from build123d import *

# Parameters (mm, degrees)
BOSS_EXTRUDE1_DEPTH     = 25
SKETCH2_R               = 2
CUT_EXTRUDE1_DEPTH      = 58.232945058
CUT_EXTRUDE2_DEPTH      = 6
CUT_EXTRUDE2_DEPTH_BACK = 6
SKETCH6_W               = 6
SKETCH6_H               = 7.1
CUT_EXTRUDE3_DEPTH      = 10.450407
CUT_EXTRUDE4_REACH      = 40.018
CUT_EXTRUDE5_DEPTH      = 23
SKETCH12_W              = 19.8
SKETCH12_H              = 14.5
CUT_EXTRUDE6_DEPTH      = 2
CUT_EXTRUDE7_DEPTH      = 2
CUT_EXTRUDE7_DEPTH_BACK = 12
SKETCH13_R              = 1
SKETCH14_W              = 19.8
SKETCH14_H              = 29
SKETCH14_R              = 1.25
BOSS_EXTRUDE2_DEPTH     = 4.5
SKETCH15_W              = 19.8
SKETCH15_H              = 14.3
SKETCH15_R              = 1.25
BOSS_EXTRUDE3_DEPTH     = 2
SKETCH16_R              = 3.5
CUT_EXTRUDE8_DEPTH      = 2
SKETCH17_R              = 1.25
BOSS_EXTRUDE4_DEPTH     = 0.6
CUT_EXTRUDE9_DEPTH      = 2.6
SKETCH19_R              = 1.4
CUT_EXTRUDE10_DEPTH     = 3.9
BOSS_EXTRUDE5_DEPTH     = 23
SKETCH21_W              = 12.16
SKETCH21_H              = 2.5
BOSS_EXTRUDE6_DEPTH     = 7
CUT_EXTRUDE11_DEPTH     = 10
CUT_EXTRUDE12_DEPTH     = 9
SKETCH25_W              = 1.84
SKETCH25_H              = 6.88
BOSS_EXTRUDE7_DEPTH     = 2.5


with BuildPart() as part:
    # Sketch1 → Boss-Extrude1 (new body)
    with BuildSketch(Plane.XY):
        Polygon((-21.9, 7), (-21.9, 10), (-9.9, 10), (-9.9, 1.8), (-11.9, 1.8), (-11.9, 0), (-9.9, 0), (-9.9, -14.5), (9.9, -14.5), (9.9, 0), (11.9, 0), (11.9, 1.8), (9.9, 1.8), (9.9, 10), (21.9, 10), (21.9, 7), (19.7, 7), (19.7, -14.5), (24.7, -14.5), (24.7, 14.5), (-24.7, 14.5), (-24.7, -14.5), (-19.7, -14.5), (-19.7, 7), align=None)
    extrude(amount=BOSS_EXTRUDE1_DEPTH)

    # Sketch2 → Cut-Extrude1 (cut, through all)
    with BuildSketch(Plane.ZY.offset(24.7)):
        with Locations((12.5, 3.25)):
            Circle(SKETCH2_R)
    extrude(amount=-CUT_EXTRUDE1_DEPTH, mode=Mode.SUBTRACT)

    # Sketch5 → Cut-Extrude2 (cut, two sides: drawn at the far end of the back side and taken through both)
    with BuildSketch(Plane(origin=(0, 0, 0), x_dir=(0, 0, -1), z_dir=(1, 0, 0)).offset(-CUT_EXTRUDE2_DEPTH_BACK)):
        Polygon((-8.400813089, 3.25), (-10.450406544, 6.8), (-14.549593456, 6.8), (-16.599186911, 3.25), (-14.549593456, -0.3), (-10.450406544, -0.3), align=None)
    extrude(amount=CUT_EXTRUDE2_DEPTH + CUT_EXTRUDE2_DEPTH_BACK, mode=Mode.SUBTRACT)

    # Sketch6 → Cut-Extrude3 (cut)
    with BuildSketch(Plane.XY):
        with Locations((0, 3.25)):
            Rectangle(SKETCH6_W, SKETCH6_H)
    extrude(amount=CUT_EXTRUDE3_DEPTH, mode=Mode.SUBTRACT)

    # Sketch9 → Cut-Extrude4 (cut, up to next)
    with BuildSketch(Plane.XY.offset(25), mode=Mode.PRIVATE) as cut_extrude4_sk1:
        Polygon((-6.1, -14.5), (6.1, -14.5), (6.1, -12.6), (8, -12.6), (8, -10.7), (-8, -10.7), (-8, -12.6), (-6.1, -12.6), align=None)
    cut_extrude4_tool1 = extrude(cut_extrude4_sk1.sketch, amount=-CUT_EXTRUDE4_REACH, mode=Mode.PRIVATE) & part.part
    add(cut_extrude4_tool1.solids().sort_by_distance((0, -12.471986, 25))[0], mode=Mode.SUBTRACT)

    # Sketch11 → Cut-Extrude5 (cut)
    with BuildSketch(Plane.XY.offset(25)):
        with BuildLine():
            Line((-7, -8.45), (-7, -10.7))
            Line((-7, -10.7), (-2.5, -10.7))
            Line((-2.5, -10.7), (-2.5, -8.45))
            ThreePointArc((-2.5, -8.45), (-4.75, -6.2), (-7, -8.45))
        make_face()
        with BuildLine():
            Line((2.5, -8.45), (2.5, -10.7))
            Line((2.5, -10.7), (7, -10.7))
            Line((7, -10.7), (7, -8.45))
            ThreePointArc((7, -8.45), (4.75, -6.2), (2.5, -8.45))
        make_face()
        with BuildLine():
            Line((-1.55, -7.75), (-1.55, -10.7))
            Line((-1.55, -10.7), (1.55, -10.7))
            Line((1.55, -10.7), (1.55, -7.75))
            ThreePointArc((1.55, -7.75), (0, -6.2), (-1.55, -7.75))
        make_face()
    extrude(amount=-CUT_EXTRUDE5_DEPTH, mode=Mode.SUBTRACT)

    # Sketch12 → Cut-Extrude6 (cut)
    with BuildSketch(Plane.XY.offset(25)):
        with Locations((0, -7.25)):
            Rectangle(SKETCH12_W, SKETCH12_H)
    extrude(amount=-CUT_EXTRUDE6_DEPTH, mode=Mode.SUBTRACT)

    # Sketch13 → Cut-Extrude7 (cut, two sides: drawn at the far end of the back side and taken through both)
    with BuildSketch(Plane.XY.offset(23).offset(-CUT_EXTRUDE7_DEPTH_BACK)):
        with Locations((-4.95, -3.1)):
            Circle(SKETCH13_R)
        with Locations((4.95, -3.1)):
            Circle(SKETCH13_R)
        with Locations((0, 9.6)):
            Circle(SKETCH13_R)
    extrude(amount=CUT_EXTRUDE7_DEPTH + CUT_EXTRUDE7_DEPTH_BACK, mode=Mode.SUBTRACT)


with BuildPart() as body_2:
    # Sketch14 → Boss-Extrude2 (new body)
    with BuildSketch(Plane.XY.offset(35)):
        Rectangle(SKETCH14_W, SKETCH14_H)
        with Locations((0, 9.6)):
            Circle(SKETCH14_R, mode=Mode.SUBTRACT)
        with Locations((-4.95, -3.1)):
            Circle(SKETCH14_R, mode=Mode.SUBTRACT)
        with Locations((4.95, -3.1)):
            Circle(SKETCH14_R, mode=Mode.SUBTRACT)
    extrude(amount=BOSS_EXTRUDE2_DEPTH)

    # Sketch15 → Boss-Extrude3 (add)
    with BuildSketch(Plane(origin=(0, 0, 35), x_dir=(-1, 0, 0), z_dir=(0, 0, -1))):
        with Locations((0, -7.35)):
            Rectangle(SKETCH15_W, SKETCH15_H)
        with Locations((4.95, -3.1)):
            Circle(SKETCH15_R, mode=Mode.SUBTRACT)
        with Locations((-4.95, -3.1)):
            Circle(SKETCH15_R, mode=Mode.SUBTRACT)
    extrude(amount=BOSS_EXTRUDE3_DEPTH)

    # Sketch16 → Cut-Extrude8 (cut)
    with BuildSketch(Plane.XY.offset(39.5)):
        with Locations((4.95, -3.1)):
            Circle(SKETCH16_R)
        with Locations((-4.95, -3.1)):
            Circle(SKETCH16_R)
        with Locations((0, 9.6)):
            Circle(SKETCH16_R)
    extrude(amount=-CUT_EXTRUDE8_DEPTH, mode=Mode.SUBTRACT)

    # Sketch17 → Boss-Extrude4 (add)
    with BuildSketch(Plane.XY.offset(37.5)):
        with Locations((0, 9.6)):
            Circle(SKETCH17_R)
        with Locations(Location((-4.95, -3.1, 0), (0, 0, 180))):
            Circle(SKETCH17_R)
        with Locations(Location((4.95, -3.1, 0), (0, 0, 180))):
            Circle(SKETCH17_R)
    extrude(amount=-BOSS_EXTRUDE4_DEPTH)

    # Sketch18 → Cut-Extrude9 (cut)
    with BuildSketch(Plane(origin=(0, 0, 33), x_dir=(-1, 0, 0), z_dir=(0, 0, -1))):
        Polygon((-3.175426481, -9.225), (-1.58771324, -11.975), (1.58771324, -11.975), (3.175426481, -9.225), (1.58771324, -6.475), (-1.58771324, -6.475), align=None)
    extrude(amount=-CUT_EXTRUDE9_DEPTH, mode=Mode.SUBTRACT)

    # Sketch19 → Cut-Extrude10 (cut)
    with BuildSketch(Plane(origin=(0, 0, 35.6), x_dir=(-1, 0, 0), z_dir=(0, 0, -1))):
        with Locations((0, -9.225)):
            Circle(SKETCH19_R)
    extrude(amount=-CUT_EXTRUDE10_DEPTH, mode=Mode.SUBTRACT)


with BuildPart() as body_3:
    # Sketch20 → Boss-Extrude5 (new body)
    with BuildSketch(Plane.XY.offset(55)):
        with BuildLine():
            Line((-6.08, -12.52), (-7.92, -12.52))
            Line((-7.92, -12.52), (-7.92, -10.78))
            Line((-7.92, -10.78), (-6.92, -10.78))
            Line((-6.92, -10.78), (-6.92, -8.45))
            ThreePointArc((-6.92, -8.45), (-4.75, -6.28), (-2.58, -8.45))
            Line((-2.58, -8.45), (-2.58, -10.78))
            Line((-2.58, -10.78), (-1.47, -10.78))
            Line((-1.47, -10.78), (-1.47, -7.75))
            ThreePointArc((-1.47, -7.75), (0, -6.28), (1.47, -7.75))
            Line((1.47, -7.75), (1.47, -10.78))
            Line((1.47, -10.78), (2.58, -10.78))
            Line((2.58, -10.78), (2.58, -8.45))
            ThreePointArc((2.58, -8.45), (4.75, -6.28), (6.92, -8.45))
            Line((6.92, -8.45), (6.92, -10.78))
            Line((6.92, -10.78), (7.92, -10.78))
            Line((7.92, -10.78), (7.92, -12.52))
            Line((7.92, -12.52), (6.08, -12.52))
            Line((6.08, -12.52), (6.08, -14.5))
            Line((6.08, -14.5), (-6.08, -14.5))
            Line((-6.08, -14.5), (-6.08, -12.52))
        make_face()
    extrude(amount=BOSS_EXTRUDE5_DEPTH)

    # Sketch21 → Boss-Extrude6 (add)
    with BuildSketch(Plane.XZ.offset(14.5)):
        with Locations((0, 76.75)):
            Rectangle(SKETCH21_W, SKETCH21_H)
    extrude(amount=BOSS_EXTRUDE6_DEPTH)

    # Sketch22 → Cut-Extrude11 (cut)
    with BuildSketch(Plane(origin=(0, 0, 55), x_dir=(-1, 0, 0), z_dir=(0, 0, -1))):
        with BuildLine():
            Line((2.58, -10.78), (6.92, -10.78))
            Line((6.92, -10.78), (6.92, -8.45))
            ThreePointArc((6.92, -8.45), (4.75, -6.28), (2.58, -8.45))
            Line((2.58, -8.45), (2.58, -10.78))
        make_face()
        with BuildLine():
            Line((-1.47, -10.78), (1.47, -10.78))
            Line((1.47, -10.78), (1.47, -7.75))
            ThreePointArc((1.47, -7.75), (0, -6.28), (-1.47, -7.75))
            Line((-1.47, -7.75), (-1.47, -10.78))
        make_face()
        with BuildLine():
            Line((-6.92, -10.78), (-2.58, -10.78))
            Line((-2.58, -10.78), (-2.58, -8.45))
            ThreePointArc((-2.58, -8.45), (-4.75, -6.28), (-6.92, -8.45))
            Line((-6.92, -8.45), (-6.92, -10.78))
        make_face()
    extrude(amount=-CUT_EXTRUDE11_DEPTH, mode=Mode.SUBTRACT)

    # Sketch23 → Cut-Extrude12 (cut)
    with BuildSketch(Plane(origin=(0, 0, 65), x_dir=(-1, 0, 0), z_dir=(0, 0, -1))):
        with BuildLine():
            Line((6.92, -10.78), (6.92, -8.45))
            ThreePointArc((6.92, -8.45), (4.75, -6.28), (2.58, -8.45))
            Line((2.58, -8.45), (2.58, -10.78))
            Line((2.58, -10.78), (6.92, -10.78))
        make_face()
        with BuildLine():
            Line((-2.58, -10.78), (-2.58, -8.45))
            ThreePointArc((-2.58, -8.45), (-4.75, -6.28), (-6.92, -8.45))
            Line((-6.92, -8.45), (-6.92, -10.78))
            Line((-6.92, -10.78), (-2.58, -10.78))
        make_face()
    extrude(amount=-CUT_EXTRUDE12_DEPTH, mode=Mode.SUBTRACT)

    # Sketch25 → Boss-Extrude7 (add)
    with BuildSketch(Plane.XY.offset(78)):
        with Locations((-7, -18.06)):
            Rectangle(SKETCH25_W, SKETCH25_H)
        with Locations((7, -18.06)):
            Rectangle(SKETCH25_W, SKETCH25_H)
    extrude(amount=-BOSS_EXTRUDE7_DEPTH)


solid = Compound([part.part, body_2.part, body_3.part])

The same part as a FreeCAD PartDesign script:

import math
import FreeCAD as App
import Part
import Sketcher
Q = App.Units.Quantity


def add_polygon(sketch, points):
    """Adds a closed chain of lines whose ends are joined by coincident constraints."""
    first, n = sketch.GeometryCount, len(points)
    for a, b in zip(points, points[1:] + points[:1]):
        sketch.addGeometry(Part.LineSegment(App.Vector(*a, 0), App.Vector(*b, 0)), False)
    for i in range(n):
        sketch.addConstraint(Sketcher.Constraint("Coincident", first + i, 2, first + (i + 1) % n, 1))

doc = App.newDocument("Part")
params = doc.addObject("Spreadsheet::Sheet", "Params")
for row, (alias, value) in enumerate([
    ("sketch1_width", "12 mm"),
    ("sketch1_width2", "2 mm"),
    ("sketch1_width3", "5 mm"),
    ("sketch1_height", "3 mm"),
    ("sketch1_height2", "29 mm"),
    ("pad1_length", "25 mm"),
    ("sketch2_diameter", "4 mm"),
    ("pocket2_length", "6 mm"),
    ("pocket2_length2", "6 mm"),
    ("sketch4_width", "6 mm"),
    ("sketch4_height", "7.1 mm"),
    ("pocket3_length", "10.450407 mm"),
    ("sketch5_width", "16 mm"),
    ("sketch5_width2", "12.2 mm"),
    ("sketch6_radius", "2.25 mm"),
    ("sketch6_radius2", "1.55 mm"),
    ("sketch6_height", "2.25 mm"),
    ("sketch6_height2", "2.95 mm"),
    ("pocket5_length", "23 mm"),
    ("sketch7_width", "19.8 mm"),
    ("sketch7_height", "14.5 mm"),
    ("pocket6_length", "2 mm"),
    ("sketch8_diameter", "2 mm"),
    ("pocket7_length", "2 mm"),
    ("pocket7_length2", "12 mm"),
    ("sketch9_diameter", "2.5 mm"),
    ("sketch9_height", "29 mm"),
    ("sketch9_width", "19.8 mm"),
    ("pad2_length", "4.5 mm"),
    ("sketch10_diameter", "2.5 mm"),
    ("sketch10_width", "19.8 mm"),
    ("sketch10_height", "14.3 mm"),
    ("pad3_length", "2 mm"),
    ("sketch11_diameter", "7 mm"),
    ("pocket8_length", "2 mm"),
    ("sketch12_diameter", "2.5 mm"),
    ("pad4_length", "0.6 mm"),
    ("pocket9_length", "2.6 mm"),
    ("sketch14_diameter", "2.8 mm"),
    ("pocket10_length", "3.9 mm"),
    ("sketch15_width", "1 mm"),
    ("sketch15_radius", "2.17 mm"),
    ("sketch15_radius2", "1.47 mm"),
    ("sketch15_width2", "1.84 mm"),
    ("sketch15_width3", "12.16 mm"),
    ("pad5_length", "23 mm"),
    ("sketch16_height", "2.5 mm"),
    ("sketch16_width", "12.16 mm"),
    ("pad6_length", "7 mm"),
    ("sketch17_radius", "2.17 mm"),
    ("sketch17_radius2", "1.47 mm"),
    ("sketch17_height", "2.33 mm"),
    ("sketch17_height2", "3.03 mm"),
    ("pocket11_length", "10 mm"),
    ("sketch18_radius", "2.17 mm"),
    ("sketch18_height", "2.33 mm"),
    ("pocket12_length", "9 mm"),
    ("sketch19_width", "1.84 mm"),
    ("sketch19_height", "6.88 mm"),
    ("pad7_length", "2.5 mm"),
], start=1):
    params.set(f"A{row}", alias)
    params.set(f"B{row}", "=" + value)
    params.setAlias(f"B{row}", alias)

body = doc.addObject("PartDesign::Body", "Body")

sketch1 = doc.addObject("Sketcher::SketchObject", "Sketch")
body.addObject(sketch1)
sketch1.AttachmentSupport = (doc.XY_Plane, [""])
sketch1.MapMode = "FlatFace"
add_polygon(sketch1, [(-21.9, 7), (-21.9, 10), (-9.9, 10), (-9.9, 1.8), (-11.9, 1.8), (-11.9, 0), (-9.9, 0), (-9.9, -14.5), (9.9, -14.5), (9.9, 0), (11.9, 0), (11.9, 1.8), (9.9, 1.8), (9.9, 10), (21.9, 10), (21.9, 7), (19.7, 7), (19.7, -14.5), (24.7, -14.5), (24.7, 14.5), (-24.7, 14.5), (-24.7, -14.5), (-19.7, -14.5), (-19.7, 7)])
sketch1.addConstraint(Sketcher.Constraint("Vertical", 0))
sketch1.addConstraint(Sketcher.Constraint("Horizontal", 1))
sketch1.addConstraint(Sketcher.Constraint("Vertical", 2))
sketch1.addConstraint(Sketcher.Constraint("Horizontal", 3))
sketch1.addConstraint(Sketcher.Constraint("Vertical", 4))
sketch1.addConstraint(Sketcher.Constraint("Horizontal", 5))
sketch1.addConstraint(Sketcher.Constraint("Vertical", 6))
sketch1.addConstraint(Sketcher.Constraint("Horizontal", 7))
sketch1.addConstraint(Sketcher.Constraint("Vertical", 8))
sketch1.addConstraint(Sketcher.Constraint("Horizontal", 9))
sketch1.addConstraint(Sketcher.Constraint("Vertical", 10))
sketch1.addConstraint(Sketcher.Constraint("Horizontal", 11))
sketch1.addConstraint(Sketcher.Constraint("Vertical", 12))
sketch1.addConstraint(Sketcher.Constraint("Horizontal", 13))
sketch1.addConstraint(Sketcher.Constraint("Vertical", 14))
sketch1.addConstraint(Sketcher.Constraint("Horizontal", 15))
sketch1.addConstraint(Sketcher.Constraint("Vertical", 16))
sketch1.addConstraint(Sketcher.Constraint("Horizontal", 17))
sketch1.addConstraint(Sketcher.Constraint("Vertical", 18))
sketch1.addConstraint(Sketcher.Constraint("Horizontal", 19))
sketch1.addConstraint(Sketcher.Constraint("Vertical", 20))
sketch1.addConstraint(Sketcher.Constraint("Horizontal", 21))
sketch1.addConstraint(Sketcher.Constraint("Vertical", 22))
sketch1.addConstraint(Sketcher.Constraint("Horizontal", 23))
sketch1.addConstraint(Sketcher.Constraint("Symmetric", 5, 2, 8, 2, -1, 1))
sketch1.addConstraint(Sketcher.Constraint("Symmetric", 17, 2, 19, 2, -1, 1))
sketch1.addConstraint(Sketcher.Constraint("Symmetric", 4, 2, 9, 2, -2))
sketch1.addConstraint(Sketcher.Constraint("Symmetric", 2, 2, 11, 2, -2))
sketch1.addConstraint(Sketcher.Constraint("Symmetric", 0, 2, 13, 2, -2))
sketch1.addConstraint(Sketcher.Constraint("Symmetric", 16, 2, 21, 2, -2))
sketch1.addConstraint(Sketcher.Constraint("Horizontal", 7, 2, 16, 2))
sketch1.addConstraint(Sketcher.Constraint("Horizontal", 15, 2, 22, 2))
sketch1.addConstraint(Sketcher.Constraint("Vertical", 2, 2, 5, 2))
sketch1.addConstraint(Sketcher.Constraint("DistanceX", 1, 1, 1, 2, 12.0))
sketch1.addConstraint(Sketcher.Constraint("DistanceX", 3, 2, 3, 1, 2.0))
sketch1.addConstraint(Sketcher.Constraint("DistanceX", 17, 1, 17, 2, 5.0))
sketch1.addConstraint(Sketcher.Constraint("DistanceY", 0, 1, 0, 2, 3.0))
sketch1.addConstraint(Sketcher.Constraint("DistanceY", 18, 1, 18, 2, 29.0))
sketch1.addConstraint(Sketcher.Constraint("DistanceX", 7, 1, 7, 2, 19.8))
sketch1.addConstraint(Sketcher.Constraint("DistanceX", 15, 2, 15, 1, 2.2))
sketch1.addConstraint(Sketcher.Constraint("DistanceY", 2, 2, 2, 1, 8.2))
sketch1.addConstraint(Sketcher.Constraint("DistanceY", 4, 2, 4, 1, 1.8))
sketch1.setExpression("Constraints[57]", "Params.sketch1_width")
sketch1.setExpression("Constraints[58]", "Params.sketch1_width2")
sketch1.setExpression("Constraints[59]", "Params.sketch1_width3")
sketch1.setExpression("Constraints[60]", "Params.sketch1_height")
sketch1.setExpression("Constraints[61]", "Params.sketch1_height2")
pad1 = doc.addObject("PartDesign::Pad", "Pad")
body.addObject(pad1)
pad1.Profile = sketch1
pad1.setExpression("Length", "Params.pad1_length")

sketch2 = doc.addObject("Sketcher::SketchObject", "Sketch001")
body.addObject(sketch2)
sketch2.AttachmentSupport = (doc.YZ_Plane, [""])
sketch2.MapMode = "FlatFace"
sketch2.AttachmentOffset = App.Placement(App.Vector(0, 0, -24.7), App.Rotation())
sketch2.addGeometry(Part.Circle(App.Vector(3.2, 12.5, 0), App.Vector(0, 0, 1), 2), False)
sketch2.addConstraint(Sketcher.Constraint("Diameter", 0, 4.0))
sketch2.addConstraint(Sketcher.Constraint("DistanceY", -1, 1, 0, 3, 12.5))
sketch2.addConstraint(Sketcher.Constraint("DistanceX", -1, 1, 0, 3, 3.25))
sketch2.setExpression("Constraints[0]", "Params.sketch2_diameter")
pocket1 = doc.addObject("PartDesign::Pocket", "Pocket")
body.addObject(pocket1)
pocket1.Profile = sketch2
pocket1.Type = "ThroughAll"
pocket1.Reversed = True

sketch3 = doc.addObject("Sketcher::SketchObject", "Sketch002")
body.addObject(sketch3)
sketch3.AttachmentSupport = (doc.YZ_Plane, [""])
sketch3.MapMode = "FlatFace"
add_polygon(sketch3, [(3.2, 8.4), (6.8, 10.5), (6.8, 14.5), (3.2, 16.6), (-0.3, 14.5), (-0.3, 10.5)])
sketch3.addConstraint(Sketcher.Constraint("Vertical", 1))
sketch3.addConstraint(Sketcher.Constraint("Vertical", 4))
sketch3.addConstraint(Sketcher.Constraint("Parallel", 0, 3))
sketch3.addConstraint(Sketcher.Constraint("Parallel", 2, 5))
sketch3.addConstraint(Sketcher.Constraint("Horizontal", 1, 2, 3, 2))
sketch3.addConstraint(Sketcher.Constraint("Horizontal", 0, 2, 4, 2))
sketch3.addConstraint(Sketcher.Constraint("Vertical", 2, 2, 5, 2))
sketch3.addConstraint(Sketcher.Constraint("Angle", 0, Q("30 deg")))
sketch3.addConstraint(Sketcher.Constraint("DistanceX", -1, 1, 0, 2, 6.8))
sketch3.addConstraint(Sketcher.Constraint("DistanceX", 3, 2, -1, 1, 0.3))
sketch3.addConstraint(Sketcher.Constraint("DistanceY", 1, 1, 1, 2, 4.099187))
sketch3.addConstraint(Sketcher.Constraint("DistanceY", -1, 1, 0, 2, 10.450407))
pocket2 = doc.addObject("PartDesign::Pocket", "Pocket001")
body.addObject(pocket2)
pocket2.Profile = sketch3
pocket2.Type = "TwoLengths"
pocket2.setExpression("Length", "Params.pocket2_length")
pocket2.setExpression("Length2", "Params.pocket2_length2")
pocket2.Reversed = True

sketch4 = doc.addObject("Sketcher::SketchObject", "Sketch003")
body.addObject(sketch4)
sketch4.AttachmentSupport = (doc.XY_Plane, [""])
sketch4.MapMode = "FlatFace"
add_polygon(sketch4, [(-3, 7), (-3, 0), (3, 0), (3, 7)])
sketch4.addConstraint(Sketcher.Constraint("Vertical", 0))
sketch4.addConstraint(Sketcher.Constraint("Horizontal", 1))
sketch4.addConstraint(Sketcher.Constraint("Vertical", 2))
sketch4.addConstraint(Sketcher.Constraint("Horizontal", 3))
sketch4.addConstraint(Sketcher.Constraint("DistanceX", 1, 1, 1, 2, 6.0))
sketch4.addConstraint(Sketcher.Constraint("DistanceY", 0, 2, 0, 1, 7.1))
sketch4.addConstraint(Sketcher.Constraint("DistanceX", 0, 2, -1, 1, 3.0))
sketch4.addConstraint(Sketcher.Constraint("DistanceY", 0, 2, -1, 1, 0.3))
sketch4.setExpression("Constraints[8]", "Params.sketch4_width")
sketch4.setExpression("Constraints[9]", "Params.sketch4_height")
pocket3 = doc.addObject("PartDesign::Pocket", "Pocket002")
body.addObject(pocket3)
pocket3.Profile = sketch4
pocket3.setExpression("Length", "Params.pocket3_length")
pocket3.Reversed = True

sketch5 = doc.addObject("Sketcher::SketchObject", "Sketch004")
body.addObject(sketch5)
sketch5.AttachmentSupport = (doc.XY_Plane, [""])
sketch5.MapMode = "FlatFace"
sketch5.AttachmentOffset = App.Placement(App.Vector(0, 0, 25), App.Rotation())
add_polygon(sketch5, [(-6.1, -14.5), (6.1, -14.5), (6.1, -12.6), (8, -12.6), (8, -10.7), (-8, -10.7), (-8, -12.6), (-6.1, -12.6)])
sketch5.addConstraint(Sketcher.Constraint("Horizontal", 0))
sketch5.addConstraint(Sketcher.Constraint("Vertical", 1))
sketch5.addConstraint(Sketcher.Constraint("Horizontal", 2))
sketch5.addConstraint(Sketcher.Constraint("Vertical", 3))
sketch5.addConstraint(Sketcher.Constraint("Horizontal", 4))
sketch5.addConstraint(Sketcher.Constraint("Vertical", 5))
sketch5.addConstraint(Sketcher.Constraint("Horizontal", 6))
sketch5.addConstraint(Sketcher.Constraint("Vertical", 7))
sketch5.addConstraint(Sketcher.Constraint("Symmetric", 2, 2, 5, 2, -2))
sketch5.addConstraint(Sketcher.Constraint("Equal", 2, 6))
sketch5.addConstraint(Sketcher.Constraint("Equal", 6, 1))
sketch5.addConstraint(Sketcher.Constraint("Equal", 1, 3))
sketch5.addConstraint(Sketcher.Constraint("DistanceX", 4, 2, 4, 1, 16.0))
sketch5.addConstraint(Sketcher.Constraint("DistanceX", 0, 1, 0, 2, 12.2))
sketch5.addConstraint(Sketcher.Constraint("DistanceY", 0, 2, -1, 1, 14.5))
sketch5.setExpression("Constraints[20]", "Params.sketch5_width")
sketch5.setExpression("Constraints[21]", "Params.sketch5_width2")
pocket4 = doc.addObject("PartDesign::Pocket", "Pocket003")
body.addObject(pocket4)
pocket4.Profile = sketch5
pocket4.Type = "UpToFirst"

sketch6 = doc.addObject("Sketcher::SketchObject", "Sketch005")
body.addObject(sketch6)
sketch6.AttachmentSupport = (doc.XY_Plane, [""])
sketch6.MapMode = "FlatFace"
sketch6.AttachmentOffset = App.Placement(App.Vector(0, 0, 25), App.Rotation())
sketch6.addGeometry(Part.LineSegment(App.Vector(-7, -8.4, 0), App.Vector(-7, -10.7, 0)), False)
sketch6.addGeometry(Part.LineSegment(App.Vector(-7, -10.7, 0), App.Vector(-2.5, -10.7, 0)), False)
sketch6.addGeometry(Part.LineSegment(App.Vector(-2.5, -10.7, 0), App.Vector(-2.5, -8.4, 0)), False)
sketch6.addGeometry(Part.ArcOfCircle(Part.Circle(App.Vector(-4.8, -8.4, 0), App.Vector(0, 0, 1), 2.2), math.radians(0), math.radians(180)), False)
sketch6.addGeometry(Part.LineSegment(App.Vector(2.5, -8.4, 0), App.Vector(2.5, -10.7, 0)), False)
sketch6.addGeometry(Part.LineSegment(App.Vector(2.5, -10.7, 0), App.Vector(7, -10.7, 0)), False)
sketch6.addGeometry(Part.LineSegment(App.Vector(7, -10.7, 0), App.Vector(7, -8.4, 0)), False)
sketch6.addGeometry(Part.ArcOfCircle(Part.Circle(App.Vector(4.8, -8.4, 0), App.Vector(0, 0, 1), 2.2), math.radians(0), math.radians(180)), False)
sketch6.addGeometry(Part.LineSegment(App.Vector(-1.6, -7.8, 0), App.Vector(-1.6, -10.7, 0)), False)
sketch6.addGeometry(Part.LineSegment(App.Vector(-1.6, -10.7, 0), App.Vector(1.6, -10.7, 0)), False)
sketch6.addGeometry(Part.LineSegment(App.Vector(1.6, -10.7, 0), App.Vector(1.6, -7.8, 0)), False)
sketch6.addGeometry(Part.ArcOfCircle(Part.Circle(App.Vector(0, -7.8, 0), App.Vector(0, 0, 1), 1.6), math.radians(0), math.radians(180)), False)
sketch6.addConstraint(Sketcher.Constraint("Coincident", 0, 2, 1, 1))
sketch6.addConstraint(Sketcher.Constraint("Coincident", 1, 2, 2, 1))
sketch6.addConstraint(Sketcher.Constraint("Tangent", 2, 2, 3, 1))
sketch6.addConstraint(Sketcher.Constraint("Tangent", 3, 2, 0, 1))
sketch6.addConstraint(Sketcher.Constraint("Coincident", 4, 2, 5, 1))
sketch6.addConstraint(Sketcher.Constraint("Coincident", 5, 2, 6, 1))
sketch6.addConstraint(Sketcher.Constraint("Tangent", 6, 2, 7, 1))
sketch6.addConstraint(Sketcher.Constraint("Tangent", 7, 2, 4, 1))
sketch6.addConstraint(Sketcher.Constraint("Coincident", 8, 2, 9, 1))
sketch6.addConstraint(Sketcher.Constraint("Coincident", 9, 2, 10, 1))
sketch6.addConstraint(Sketcher.Constraint("Tangent", 10, 2, 11, 1))
sketch6.addConstraint(Sketcher.Constraint("Tangent", 11, 2, 8, 1))
sketch6.addConstraint(Sketcher.Constraint("Vertical", 0))
sketch6.addConstraint(Sketcher.Constraint("Horizontal", 1))
sketch6.addConstraint(Sketcher.Constraint("Vertical", 2))
sketch6.addConstraint(Sketcher.Constraint("Vertical", 4))
sketch6.addConstraint(Sketcher.Constraint("Horizontal", 5))
sketch6.addConstraint(Sketcher.Constraint("Vertical", 6))
sketch6.addConstraint(Sketcher.Constraint("Vertical", 8))
sketch6.addConstraint(Sketcher.Constraint("Horizontal", 9))
sketch6.addConstraint(Sketcher.Constraint("Vertical", 10))
sketch6.addConstraint(Sketcher.Constraint("Equal", 3, 7))
sketch6.addConstraint(Sketcher.Constraint("Symmetric", 3, 3, 7, 3, -2))
sketch6.addConstraint(Sketcher.Constraint("PointOnObject", 11, 3, -2))
sketch6.addConstraint(Sketcher.Constraint("Horizontal", 1, 2, 4, 2))
sketch6.addConstraint(Sketcher.Constraint("Horizontal", 5, 2, 8, 2))
sketch6.addConstraint(Sketcher.Constraint("Radius", 3, 2.25))
sketch6.addConstraint(Sketcher.Constraint("Radius", 11, 1.55))
sketch6.addConstraint(Sketcher.Constraint("DistanceX", 0, 2, -1, 1, 7.0))
sketch6.addConstraint(Sketcher.Constraint("DistanceY", 0, 2, 0, 1, 2.25))
sketch6.addConstraint(Sketcher.Constraint("DistanceY", 8, 2, 8, 1, 2.95))
sketch6.addConstraint(Sketcher.Constraint("DistanceY", 0, 2, -1, 1, 10.7))
sketch6.setExpression("Constraints[26]", "Params.sketch6_radius")
sketch6.setExpression("Constraints[27]", "Params.sketch6_radius2")
sketch6.setExpression("Constraints[29]", "Params.sketch6_height")
sketch6.setExpression("Constraints[30]", "Params.sketch6_height2")
pocket5 = doc.addObject("PartDesign::Pocket", "Pocket004")
body.addObject(pocket5)
pocket5.Profile = sketch6
pocket5.setExpression("Length", "Params.pocket5_length")

sketch7 = doc.addObject("Sketcher::SketchObject", "Sketch006")
body.addObject(sketch7)
sketch7.AttachmentSupport = (doc.XY_Plane, [""])
sketch7.MapMode = "FlatFace"
sketch7.AttachmentOffset = App.Placement(App.Vector(0, 0, 25), App.Rotation())
add_polygon(sketch7, [(-10, 0), (-10, -14), (10, -14), (10, 0)])
sketch7.addConstraint(Sketcher.Constraint("Vertical", 0))
sketch7.addConstraint(Sketcher.Constraint("Horizontal", 1))
sketch7.addConstraint(Sketcher.Constraint("Vertical", 2))
sketch7.addConstraint(Sketcher.Constraint("Horizontal", 3))
sketch7.addConstraint(Sketcher.Constraint("Symmetric", 2, 2, 3, 2, -1, 1))
sketch7.addConstraint(Sketcher.Constraint("DistanceX", 1, 1, 1, 2, 19.8))
sketch7.addConstraint(Sketcher.Constraint("DistanceY", 0, 2, 0, 1, 14.5))
sketch7.setExpression("Constraints[9]", "Params.sketch7_width")
sketch7.setExpression("Constraints[10]", "Params.sketch7_height")
pocket6 = doc.addObject("PartDesign::Pocket", "Pocket005")
body.addObject(pocket6)
pocket6.Profile = sketch7
pocket6.setExpression("Length", "Params.pocket6_length")

sketch8 = doc.addObject("Sketcher::SketchObject", "Sketch007")
body.addObject(sketch8)
sketch8.AttachmentSupport = (doc.XY_Plane, [""])
sketch8.MapMode = "FlatFace"
sketch8.AttachmentOffset = App.Placement(App.Vector(0, 0, 23), App.Rotation())
sketch8.addGeometry(Part.Circle(App.Vector(-5, -3.1, 0), App.Vector(0, 0, 1), 1), False)
sketch8.addGeometry(Part.Circle(App.Vector(5, -3.1, 0), App.Vector(0, 0, 1), 1), False)
sketch8.addGeometry(Part.Circle(App.Vector(0, 9.6, 0), App.Vector(0, 0, 1), 1), False)
sketch8.addConstraint(Sketcher.Constraint("Equal", 0, 1))
sketch8.addConstraint(Sketcher.Constraint("Equal", 1, 2))
sketch8.addConstraint(Sketcher.Constraint("Symmetric", 0, 3, 1, 3, -2))
sketch8.addConstraint(Sketcher.Constraint("PointOnObject", 2, 3, -2))
sketch8.addConstraint(Sketcher.Constraint("Diameter", 0, 2.0))
sketch8.addConstraint(Sketcher.Constraint("DistanceY", 0, 3, -1, 1, 3.1))
sketch8.addConstraint(Sketcher.Constraint("DistanceY", -1, 1, 2, 3, 9.6))
sketch8.addConstraint(Sketcher.Constraint("DistanceX", 0, 3, 1, 3, 9.9))
sketch8.setExpression("Constraints[4]", "Params.sketch8_diameter")
pocket7 = doc.addObject("PartDesign::Pocket", "Pocket006")
body.addObject(pocket7)
pocket7.Profile = sketch8
pocket7.Type = "TwoLengths"
pocket7.setExpression("Length", "Params.pocket7_length")
pocket7.setExpression("Length2", "Params.pocket7_length2")
pocket7.Reversed = True
body2 = doc.addObject("PartDesign::Body", "Body001")

sketch9 = doc.addObject("Sketcher::SketchObject", "Sketch008")
body2.addObject(sketch9)
sketch9.AttachmentSupport = (doc.getObject("XY_Plane001"), [""])
sketch9.MapMode = "FlatFace"
sketch9.AttachmentOffset = App.Placement(App.Vector(0, 0, 35), App.Rotation())
add_polygon(sketch9, [(-9.9, 14.5), (-9.9, -14.5), (9.9, -14.5), (9.9, 14.5)])
sketch9.addGeometry(Part.Circle(App.Vector(-5, -3.1, 0), App.Vector(0, 0, 1), 1.2), False)
sketch9.addGeometry(Part.Circle(App.Vector(5, -3.1, 0), App.Vector(0, 0, 1), 1.2), False)
sketch9.addGeometry(Part.Circle(App.Vector(0, 9.6, 0), App.Vector(0, 0, 1), 1.2), False)
sketch9.addConstraint(Sketcher.Constraint("Vertical", 0))
sketch9.addConstraint(Sketcher.Constraint("Horizontal", 1))
sketch9.addConstraint(Sketcher.Constraint("Vertical", 2))
sketch9.addConstraint(Sketcher.Constraint("Horizontal", 3))
sketch9.addConstraint(Sketcher.Constraint("Equal", 4, 5))
sketch9.addConstraint(Sketcher.Constraint("Equal", 5, 6))
sketch9.addConstraint(Sketcher.Constraint("Symmetric", 0, 2, 2, 2, -1, 1))
sketch9.addConstraint(Sketcher.Constraint("Symmetric", 4, 3, 5, 3, -2))
sketch9.addConstraint(Sketcher.Constraint("PointOnObject", 6, 3, -2))
sketch9.addConstraint(Sketcher.Constraint("Diameter", 4, 2.5))
sketch9.addConstraint(Sketcher.Constraint("DistanceY", 0, 2, 0, 1, 29.0))
sketch9.addConstraint(Sketcher.Constraint("DistanceX", 1, 1, 1, 2, 19.8))
sketch9.addConstraint(Sketcher.Constraint("DistanceY", 4, 3, -1, 1, 3.1))
sketch9.addConstraint(Sketcher.Constraint("DistanceY", -1, 1, 6, 3, 9.6))
sketch9.addConstraint(Sketcher.Constraint("DistanceX", 4, 3, 5, 3, 9.9))
sketch9.setExpression("Constraints[13]", "Params.sketch9_diameter")
sketch9.setExpression("Constraints[14]", "Params.sketch9_height")
sketch9.setExpression("Constraints[15]", "Params.sketch9_width")
pad2 = doc.addObject("PartDesign::Pad", "Pad001")
body2.addObject(pad2)
pad2.Profile = sketch9
pad2.setExpression("Length", "Params.pad2_length")

sketch10 = doc.addObject("Sketcher::SketchObject", "Sketch009")
body2.addObject(sketch10)
sketch10.AttachmentSupport = (doc.getObject("XY_Plane001"), [""])
sketch10.MapMode = "FlatFace"
sketch10.AttachmentOffset = App.Placement(App.Vector(0, 0, 35), App.Rotation())
add_polygon(sketch10, [(9.9, -0.2), (9.9, -14.5), (-9.9, -14.5), (-9.9, -0.2)])
sketch10.addGeometry(Part.Circle(App.Vector(5, -3.1, 0), App.Vector(0, 0, 1), 1.2), False)
sketch10.addGeometry(Part.Circle(App.Vector(-5, -3.1, 0), App.Vector(0, 0, 1), 1.2), False)
sketch10.addConstraint(Sketcher.Constraint("Vertical", 0))
sketch10.addConstraint(Sketcher.Constraint("Horizontal", 1))
sketch10.addConstraint(Sketcher.Constraint("Vertical", 2))
sketch10.addConstraint(Sketcher.Constraint("Horizontal", 3))
sketch10.addConstraint(Sketcher.Constraint("Equal", 4, 5))
sketch10.addConstraint(Sketcher.Constraint("Symmetric", 4, 3, 5, 3, -2))
sketch10.addConstraint(Sketcher.Constraint("Diameter", 4, 2.5))
sketch10.addConstraint(Sketcher.Constraint("DistanceX", 1, 2, 1, 1, 19.8))
sketch10.addConstraint(Sketcher.Constraint("DistanceY", 0, 2, 0, 1, 14.3))
sketch10.addConstraint(Sketcher.Constraint("DistanceY", 4, 3, -1, 1, 3.1))
sketch10.addConstraint(Sketcher.Constraint("DistanceX", -1, 1, 0, 2, 9.9))
sketch10.addConstraint(Sketcher.Constraint("DistanceY", 0, 2, -1, 1, 14.5))
sketch10.addConstraint(Sketcher.Constraint("DistanceX", 5, 3, 4, 3, 9.9))
sketch10.setExpression("Constraints[10]", "Params.sketch10_diameter")
sketch10.setExpression("Constraints[11]", "Params.sketch10_width")
sketch10.setExpression("Constraints[12]", "Params.sketch10_height")
pad3 = doc.addObject("PartDesign::Pad", "Pad002")
body2.addObject(pad3)
pad3.Profile = sketch10
pad3.setExpression("Length", "Params.pad3_length")
pad3.Reversed = True

sketch11 = doc.addObject("Sketcher::SketchObject", "Sketch010")
body2.addObject(sketch11)
sketch11.AttachmentSupport = (doc.getObject("XY_Plane001"), [""])
sketch11.MapMode = "FlatFace"
sketch11.AttachmentOffset = App.Placement(App.Vector(0, 0, 39.5), App.Rotation())
sketch11.addGeometry(Part.Circle(App.Vector(5, -3.1, 0), App.Vector(0, 0, 1), 3.5), False)
sketch11.addGeometry(Part.Circle(App.Vector(-5, -3.1, 0), App.Vector(0, 0, 1), 3.5), False)
sketch11.addGeometry(Part.Circle(App.Vector(0, 9.6, 0), App.Vector(0, 0, 1), 3.5), False)
sketch11.addConstraint(Sketcher.Constraint("Equal", 0, 1))
sketch11.addConstraint(Sketcher.Constraint("Equal", 1, 2))
sketch11.addConstraint(Sketcher.Constraint("Symmetric", 0, 3, 1, 3, -2))
sketch11.addConstraint(Sketcher.Constraint("PointOnObject", 2, 3, -2))
sketch11.addConstraint(Sketcher.Constraint("Diameter", 0, 7.0))
sketch11.addConstraint(Sketcher.Constraint("DistanceY", 0, 3, -1, 1, 3.1))
sketch11.addConstraint(Sketcher.Constraint("DistanceY", -1, 1, 2, 3, 9.6))
sketch11.addConstraint(Sketcher.Constraint("DistanceX", 1, 3, 0, 3, 9.9))
sketch11.setExpression("Constraints[4]", "Params.sketch11_diameter")
pocket8 = doc.addObject("PartDesign::Pocket", "Pocket007")
body2.addObject(pocket8)
pocket8.Profile = sketch11
pocket8.setExpression("Length", "Params.pocket8_length")

sketch12 = doc.addObject("Sketcher::SketchObject", "Sketch011")
body2.addObject(sketch12)
sketch12.AttachmentSupport = (doc.getObject("XY_Plane001"), [""])
sketch12.MapMode = "FlatFace"
sketch12.AttachmentOffset = App.Placement(App.Vector(0, 0, 37.5), App.Rotation())
sketch12.addGeometry(Part.Circle(App.Vector(0, 9.6, 0), App.Vector(0, 0, 1), 1.2), False)
sketch12.addGeometry(Part.Circle(App.Vector(-5, -3.1, 0), App.Vector(0, 0, 1), 1.2), False)
sketch12.addGeometry(Part.Circle(App.Vector(5, -3.1, 0), App.Vector(0, 0, 1), 1.2), False)
sketch12.addConstraint(Sketcher.Constraint("Equal", 0, 1))
sketch12.addConstraint(Sketcher.Constraint("Equal", 1, 2))
sketch12.addConstraint(Sketcher.Constraint("Symmetric", 1, 3, 2, 3, -2))
sketch12.addConstraint(Sketcher.Constraint("PointOnObject", 0, 3, -2))
sketch12.addConstraint(Sketcher.Constraint("Diameter", 0, 2.5))
sketch12.addConstraint(Sketcher.Constraint("DistanceY", -1, 1, 0, 3, 9.6))
sketch12.addConstraint(Sketcher.Constraint("DistanceY", 1, 3, -1, 1, 3.1))
sketch12.addConstraint(Sketcher.Constraint("DistanceX", 1, 3, 2, 3, 9.9))
sketch12.setExpression("Constraints[4]", "Params.sketch12_diameter")
pad4 = doc.addObject("PartDesign::Pad", "Pad003")
body2.addObject(pad4)
pad4.Profile = sketch12
pad4.setExpression("Length", "Params.pad4_length")
pad4.Reversed = True

sketch13 = doc.addObject("Sketcher::SketchObject", "Sketch012")
body2.addObject(sketch13)
sketch13.AttachmentSupport = (doc.getObject("XY_Plane001"), [""])
sketch13.MapMode = "FlatFace"
sketch13.AttachmentOffset = App.Placement(App.Vector(0, 0, 33), App.Rotation())
add_polygon(sketch13, [(3.2, -9.2), (1.6, -12), (-1.6, -12), (-3.2, -9.2), (-1.6, -6.5), (1.6, -6.5)])
sketch13.addConstraint(Sketcher.Constraint("Horizontal", 1))
sketch13.addConstraint(Sketcher.Constraint("Horizontal", 4))
sketch13.addConstraint(Sketcher.Constraint("Symmetric", 2, 2, 5, 2, -2))
sketch13.addConstraint(Sketcher.Constraint("Parallel", 0, 3))
sketch13.addConstraint(Sketcher.Constraint("Parallel", 2, 5))
sketch13.addConstraint(Sketcher.Constraint("Vertical", 1, 2, 3, 2))
sketch13.addConstraint(Sketcher.Constraint("Vertical", 0, 2, 4, 2))
sketch13.addConstraint(Sketcher.Constraint("Angle", 0, Q("-120 deg")))
sketch13.addConstraint(Sketcher.Constraint("DistanceY", 1, 2, 3, 2, 5.5))
sketch13.addConstraint(Sketcher.Constraint("DistanceY", 0, 2, -1, 1, 11.975))
sketch13.addConstraint(Sketcher.Constraint("DistanceX", 1, 2, 1, 1, 3.175426))
pocket9 = doc.addObject("PartDesign::Pocket", "Pocket008")
body2.addObject(pocket9)
pocket9.Profile = sketch13
pocket9.setExpression("Length", "Params.pocket9_length")
pocket9.Reversed = True

sketch14 = doc.addObject("Sketcher::SketchObject", "Sketch013")
body2.addObject(sketch14)
sketch14.AttachmentSupport = (doc.getObject("XY_Plane001"), [""])
sketch14.MapMode = "FlatFace"
sketch14.AttachmentOffset = App.Placement(App.Vector(0, 0, 35.6), App.Rotation())
sketch14.addGeometry(Part.Circle(App.Vector(0, -9.2, 0), App.Vector(0, 0, 1), 1.4), False)
sketch14.addConstraint(Sketcher.Constraint("PointOnObject", 0, 3, -2))
sketch14.addConstraint(Sketcher.Constraint("Diameter", 0, 2.8))
sketch14.addConstraint(Sketcher.Constraint("DistanceY", 0, 3, -1, 1, 9.225))
sketch14.setExpression("Constraints[1]", "Params.sketch14_diameter")
pocket10 = doc.addObject("PartDesign::Pocket", "Pocket009")
body2.addObject(pocket10)
pocket10.Profile = sketch14
pocket10.setExpression("Length", "Params.pocket10_length")
pocket10.Reversed = True
body3 = doc.addObject("PartDesign::Body", "Body002")

sketch15 = doc.addObject("Sketcher::SketchObject", "Sketch014")
body3.addObject(sketch15)
sketch15.AttachmentSupport = (doc.getObject("XY_Plane002"), [""])
sketch15.MapMode = "FlatFace"
sketch15.AttachmentOffset = App.Placement(App.Vector(0, 0, 55), App.Rotation())
sketch15.addGeometry(Part.LineSegment(App.Vector(-7.9, -12.5, 0), App.Vector(-6.1, -12.5, 0)), False)
sketch15.addGeometry(Part.LineSegment(App.Vector(-6.1, -12.5, 0), App.Vector(-6.1, -14.5, 0)), False)
sketch15.addGeometry(Part.LineSegment(App.Vector(-6.1, -14.5, 0), App.Vector(6.1, -14.5, 0)), False)
sketch15.addGeometry(Part.LineSegment(App.Vector(6.1, -14.5, 0), App.Vector(6.1, -12.5, 0)), False)
sketch15.addGeometry(Part.LineSegment(App.Vector(6.1, -12.5, 0), App.Vector(7.9, -12.5, 0)), False)
sketch15.addGeometry(Part.LineSegment(App.Vector(7.9, -12.5, 0), App.Vector(7.9, -10.8, 0)), False)
sketch15.addGeometry(Part.LineSegment(App.Vector(7.9, -10.8, 0), App.Vector(6.9, -10.8, 0)), False)
sketch15.addGeometry(Part.LineSegment(App.Vector(6.9, -10.8, 0), App.Vector(6.9, -8.4, 0)), False)
sketch15.addGeometry(Part.ArcOfCircle(Part.Circle(App.Vector(4.8, -8.4, 0), App.Vector(0, 0, 1), 2.2), math.radians(0), math.radians(180)), False)
sketch15.addGeometry(Part.LineSegment(App.Vector(2.6, -8.4, 0), App.Vector(2.6, -10.8, 0)), False)
sketch15.addGeometry(Part.LineSegment(App.Vector(2.6, -10.8, 0), App.Vector(1.5, -10.8, 0)), False)
sketch15.addGeometry(Part.LineSegment(App.Vector(1.5, -10.8, 0), App.Vector(1.5, -7.8, 0)), False)
sketch15.addGeometry(Part.ArcOfCircle(Part.Circle(App.Vector(0, -7.8, 0), App.Vector(0, 0, 1), 1.5), math.radians(0), math.radians(180)), False)
sketch15.addGeometry(Part.LineSegment(App.Vector(-1.5, -7.8, 0), App.Vector(-1.5, -10.8, 0)), False)
sketch15.addGeometry(Part.LineSegment(App.Vector(-1.5, -10.8, 0), App.Vector(-2.6, -10.8, 0)), False)
sketch15.addGeometry(Part.LineSegment(App.Vector(-2.6, -10.8, 0), App.Vector(-2.6, -8.4, 0)), False)
sketch15.addGeometry(Part.ArcOfCircle(Part.Circle(App.Vector(-4.8, -8.4, 0), App.Vector(0, 0, 1), 2.2), math.radians(0), math.radians(180)), False)
sketch15.addGeometry(Part.LineSegment(App.Vector(-6.9, -8.4, 0), App.Vector(-6.9, -10.8, 0)), False)
sketch15.addGeometry(Part.LineSegment(App.Vector(-6.9, -10.8, 0), App.Vector(-7.9, -10.8, 0)), False)
sketch15.addGeometry(Part.LineSegment(App.Vector(-7.9, -10.8, 0), App.Vector(-7.9, -12.5, 0)), False)
sketch15.addConstraint(Sketcher.Constraint("Coincident", 0, 2, 1, 1))
sketch15.addConstraint(Sketcher.Constraint("Coincident", 1, 2, 2, 1))
sketch15.addConstraint(Sketcher.Constraint("Coincident", 2, 2, 3, 1))
sketch15.addConstraint(Sketcher.Constraint("Coincident", 3, 2, 4, 1))
sketch15.addConstraint(Sketcher.Constraint("Coincident", 4, 2, 5, 1))
sketch15.addConstraint(Sketcher.Constraint("Coincident", 5, 2, 6, 1))
sketch15.addConstraint(Sketcher.Constraint("Coincident", 6, 2, 7, 1))
sketch15.addConstraint(Sketcher.Constraint("Tangent", 7, 2, 8, 1))
sketch15.addConstraint(Sketcher.Constraint("Tangent", 8, 2, 9, 1))
sketch15.addConstraint(Sketcher.Constraint("Coincident", 9, 2, 10, 1))
sketch15.addConstraint(Sketcher.Constraint("Coincident", 10, 2, 11, 1))
sketch15.addConstraint(Sketcher.Constraint("Tangent", 11, 2, 12, 1))
sketch15.addConstraint(Sketcher.Constraint("Tangent", 12, 2, 13, 1))
sketch15.addConstraint(Sketcher.Constraint("Coincident", 13, 2, 14, 1))
sketch15.addConstraint(Sketcher.Constraint("Coincident", 14, 2, 15, 1))
sketch15.addConstraint(Sketcher.Constraint("Tangent", 15, 2, 16, 1))
sketch15.addConstraint(Sketcher.Constraint("Tangent", 16, 2, 17, 1))
sketch15.addConstraint(Sketcher.Constraint("Coincident", 17, 2, 18, 1))
sketch15.addConstraint(Sketcher.Constraint("Coincident", 18, 2, 19, 1))
sketch15.addConstraint(Sketcher.Constraint("Coincident", 19, 2, 0, 1))
sketch15.addConstraint(Sketcher.Constraint("Horizontal", 0))
sketch15.addConstraint(Sketcher.Constraint("Vertical", 1))
sketch15.addConstraint(Sketcher.Constraint("Horizontal", 2))
sketch15.addConstraint(Sketcher.Constraint("Vertical", 3))
sketch15.addConstraint(Sketcher.Constraint("Horizontal", 4))
sketch15.addConstraint(Sketcher.Constraint("Vertical", 5))
sketch15.addConstraint(Sketcher.Constraint("Horizontal", 6))
sketch15.addConstraint(Sketcher.Constraint("Vertical", 7))
sketch15.addConstraint(Sketcher.Constraint("Vertical", 9))
sketch15.addConstraint(Sketcher.Constraint("Horizontal", 10))
sketch15.addConstraint(Sketcher.Constraint("Vertical", 11))
sketch15.addConstraint(Sketcher.Constraint("Vertical", 13))
sketch15.addConstraint(Sketcher.Constraint("Horizontal", 14))
sketch15.addConstraint(Sketcher.Constraint("Vertical", 15))
sketch15.addConstraint(Sketcher.Constraint("Vertical", 17))
sketch15.addConstraint(Sketcher.Constraint("Horizontal", 18))
sketch15.addConstraint(Sketcher.Constraint("Vertical", 19))
sketch15.addConstraint(Sketcher.Constraint("Equal", 8, 16))
sketch15.addConstraint(Sketcher.Constraint("Symmetric", 8, 3, 16, 3, -2))
sketch15.addConstraint(Sketcher.Constraint("Symmetric", 0, 2, 3, 2, -2))
sketch15.addConstraint(Sketcher.Constraint("Symmetric", 10, 2, 13, 2, -2))
sketch15.addConstraint(Sketcher.Constraint("Symmetric", 5, 2, 18, 2, -2))
sketch15.addConstraint(Sketcher.Constraint("Horizontal", 6, 2, 9, 2))
sketch15.addConstraint(Sketcher.Constraint("DistanceX", 6, 2, 6, 1, 1.0))
sketch15.addConstraint(Sketcher.Constraint("Radius", 8, 2.17))
sketch15.addConstraint(Sketcher.Constraint("Radius", 12, 1.47))
sketch15.addConstraint(Sketcher.Constraint("DistanceX", 0, 1, 0, 2, 1.84))
sketch15.addConstraint(Sketcher.Constraint("DistanceX", 2, 1, 2, 2, 12.16))
sketch15.addConstraint(Sketcher.Constraint("DistanceY", 1, 2, 1, 1, 1.98))
sketch15.addConstraint(Sketcher.Constraint("DistanceY", 5, 1, 5, 2, 1.74))
sketch15.addConstraint(Sketcher.Constraint("DistanceY", 7, 1, 7, 2, 2.33))
sketch15.addConstraint(Sketcher.Constraint("DistanceY", 11, 1, 11, 2, 3.03))
sketch15.addConstraint(Sketcher.Constraint("DistanceY", 1, 2, -1, 1, 14.5))
sketch15.setExpression("Constraints[43]", "Params.sketch15_width")
sketch15.setExpression("Constraints[44]", "Params.sketch15_radius")
sketch15.setExpression("Constraints[45]", "Params.sketch15_radius2")
sketch15.setExpression("Constraints[46]", "Params.sketch15_width2")
sketch15.setExpression("Constraints[47]", "Params.sketch15_width3")
pad5 = doc.addObject("PartDesign::Pad", "Pad004")
body3.addObject(pad5)
pad5.Profile = sketch15
pad5.setExpression("Length", "Params.pad5_length")

sketch16 = doc.addObject("Sketcher::SketchObject", "Sketch015")
body3.addObject(sketch16)
sketch16.AttachmentSupport = (doc.getObject("XZ_Plane002"), [""])
sketch16.MapMode = "FlatFace"
sketch16.AttachmentOffset = App.Placement(App.Vector(0, 0, 14.5), App.Rotation())
add_polygon(sketch16, [(-6.1, 78), (-6.1, 75.5), (6.1, 75.5), (6.1, 78)])
sketch16.addConstraint(Sketcher.Constraint("Vertical", 0))
sketch16.addConstraint(Sketcher.Constraint("Horizontal", 1))
sketch16.addConstraint(Sketcher.Constraint("Vertical", 2))
sketch16.addConstraint(Sketcher.Constraint("Horizontal", 3))
sketch16.addConstraint(Sketcher.Constraint("DistanceY", 0, 2, 0, 1, 2.5))
sketch16.addConstraint(Sketcher.Constraint("DistanceY", -1, 1, 2, 2, 78.0))
sketch16.addConstraint(Sketcher.Constraint("DistanceX", 1, 1, 1, 2, 12.16))
sketch16.addConstraint(Sketcher.Constraint("DistanceX", 0, 2, -1, 1, 6.08))
sketch16.setExpression("Constraints[8]", "Params.sketch16_height")
sketch16.setExpression("Constraints[10]", "Params.sketch16_width")
pad6 = doc.addObject("PartDesign::Pad", "Pad005")
body3.addObject(pad6)
pad6.Profile = sketch16
pad6.setExpression("Length", "Params.pad6_length")

sketch17 = doc.addObject("Sketcher::SketchObject", "Sketch016")
body3.addObject(sketch17)
sketch17.AttachmentSupport = (doc.getObject("XY_Plane002"), [""])
sketch17.MapMode = "FlatFace"
sketch17.AttachmentOffset = App.Placement(App.Vector(0, 0, 55), App.Rotation())
sketch17.addGeometry(Part.LineSegment(App.Vector(-2.6, -10.8, 0), App.Vector(-6.9, -10.8, 0)), False)
sketch17.addGeometry(Part.LineSegment(App.Vector(-6.9, -10.8, 0), App.Vector(-6.9, -8.4, 0)), False)
sketch17.addGeometry(Part.ArcOfCircle(Part.Circle(App.Vector(-4.8, -8.4, 0), App.Vector(0, 0, 1), 2.2), math.radians(0), math.radians(180)), False)
sketch17.addGeometry(Part.LineSegment(App.Vector(-2.6, -8.4, 0), App.Vector(-2.6, -10.8, 0)), False)
sketch17.addGeometry(Part.LineSegment(App.Vector(1.5, -10.8, 0), App.Vector(-1.5, -10.8, 0)), False)
sketch17.addGeometry(Part.LineSegment(App.Vector(-1.5, -10.8, 0), App.Vector(-1.5, -7.8, 0)), False)
sketch17.addGeometry(Part.ArcOfCircle(Part.Circle(App.Vector(0, -7.8, 0), App.Vector(0, 0, 1), 1.5), math.radians(0), math.radians(180)), False)
sketch17.addGeometry(Part.LineSegment(App.Vector(1.5, -7.8, 0), App.Vector(1.5, -10.8, 0)), False)
sketch17.addGeometry(Part.LineSegment(App.Vector(6.9, -10.8, 0), App.Vector(2.6, -10.8, 0)), False)
sketch17.addGeometry(Part.LineSegment(App.Vector(2.6, -10.8, 0), App.Vector(2.6, -8.4, 0)), False)
sketch17.addGeometry(Part.ArcOfCircle(Part.Circle(App.Vector(4.8, -8.4, 0), App.Vector(0, 0, 1), 2.2), math.radians(0), math.radians(180)), False)
sketch17.addGeometry(Part.LineSegment(App.Vector(6.9, -8.4, 0), App.Vector(6.9, -10.8, 0)), False)
sketch17.addConstraint(Sketcher.Constraint("Coincident", 0, 2, 1, 1))
sketch17.addConstraint(Sketcher.Constraint("Tangent", 1, 2, 2, 2))
sketch17.addConstraint(Sketcher.Constraint("Tangent", 2, 1, 3, 1))
sketch17.addConstraint(Sketcher.Constraint("Coincident", 3, 2, 0, 1))
sketch17.addConstraint(Sketcher.Constraint("Coincident", 4, 2, 5, 1))
sketch17.addConstraint(Sketcher.Constraint("Tangent", 5, 2, 6, 2))
sketch17.addConstraint(Sketcher.Constraint("Tangent", 6, 1, 7, 1))
sketch17.addConstraint(Sketcher.Constraint("Coincident", 7, 2, 4, 1))
sketch17.addConstraint(Sketcher.Constraint("Coincident", 8, 2, 9, 1))
sketch17.addConstraint(Sketcher.Constraint("Tangent", 9, 2, 10, 2))
sketch17.addConstraint(Sketcher.Constraint("Tangent", 10, 1, 11, 1))
sketch17.addConstraint(Sketcher.Constraint("Coincident", 11, 2, 8, 1))
sketch17.addConstraint(Sketcher.Constraint("Horizontal", 0))
sketch17.addConstraint(Sketcher.Constraint("Vertical", 1))
sketch17.addConstraint(Sketcher.Constraint("Vertical", 3))
sketch17.addConstraint(Sketcher.Constraint("Horizontal", 4))
sketch17.addConstraint(Sketcher.Constraint("Vertical", 5))
sketch17.addConstraint(Sketcher.Constraint("Vertical", 7))
sketch17.addConstraint(Sketcher.Constraint("Horizontal", 8))
sketch17.addConstraint(Sketcher.Constraint("Vertical", 9))
sketch17.addConstraint(Sketcher.Constraint("Vertical", 11))
sketch17.addConstraint(Sketcher.Constraint("Equal", 2, 10))
sketch17.addConstraint(Sketcher.Constraint("Symmetric", 2, 3, 10, 3, -2))
sketch17.addConstraint(Sketcher.Constraint("PointOnObject", 6, 3, -2))
sketch17.addConstraint(Sketcher.Constraint("Horizontal", 3, 2, 4, 2))
sketch17.addConstraint(Sketcher.Constraint("Horizontal", 7, 2, 8, 2))
sketch17.addConstraint(Sketcher.Constraint("Radius", 2, 2.17))
sketch17.addConstraint(Sketcher.Constraint("Radius", 6, 1.47))
sketch17.addConstraint(Sketcher.Constraint("DistanceY", 1, 1, 1, 2, 2.33))
sketch17.addConstraint(Sketcher.Constraint("DistanceY", 5, 1, 5, 2, 3.03))
sketch17.addConstraint(Sketcher.Constraint("DistanceX", 2, 3, 10, 3, 9.5))
sketch17.addConstraint(Sketcher.Constraint("DistanceY", 2, 3, -1, 1, 8.45))
sketch17.setExpression("Constraints[26]", "Params.sketch17_radius")
sketch17.setExpression("Constraints[27]", "Params.sketch17_radius2")
sketch17.setExpression("Constraints[28]", "Params.sketch17_height")
sketch17.setExpression("Constraints[29]", "Params.sketch17_height2")
pocket11 = doc.addObject("PartDesign::Pocket", "Pocket010")
body3.addObject(pocket11)
pocket11.Profile = sketch17
pocket11.setExpression("Length", "Params.pocket11_length")
pocket11.Reversed = True

sketch18 = doc.addObject("Sketcher::SketchObject", "Sketch017")
body3.addObject(sketch18)
sketch18.AttachmentSupport = (doc.getObject("XY_Plane002"), [""])
sketch18.MapMode = "FlatFace"
sketch18.AttachmentOffset = App.Placement(App.Vector(0, 0, 65), App.Rotation())
sketch18.addGeometry(Part.LineSegment(App.Vector(-6.9, -10.8, 0), App.Vector(-6.9, -8.4, 0)), False)
sketch18.addGeometry(Part.ArcOfCircle(Part.Circle(App.Vector(-4.8, -8.4, 0), App.Vector(0, 0, 1), 2.2), math.radians(0), math.radians(180)), False)
sketch18.addGeometry(Part.LineSegment(App.Vector(-2.6, -8.4, 0), App.Vector(-2.6, -10.8, 0)), False)
sketch18.addGeometry(Part.LineSegment(App.Vector(-2.6, -10.8, 0), App.Vector(-6.9, -10.8, 0)), False)
sketch18.addGeometry(Part.LineSegment(App.Vector(2.6, -10.8, 0), App.Vector(2.6, -8.4, 0)), False)
sketch18.addGeometry(Part.ArcOfCircle(Part.Circle(App.Vector(4.8, -8.4, 0), App.Vector(0, 0, 1), 2.2), math.radians(0), math.radians(180)), False)
sketch18.addGeometry(Part.LineSegment(App.Vector(6.9, -8.4, 0), App.Vector(6.9, -10.8, 0)), False)
sketch18.addGeometry(Part.LineSegment(App.Vector(6.9, -10.8, 0), App.Vector(2.6, -10.8, 0)), False)
sketch18.addConstraint(Sketcher.Constraint("Tangent", 0, 2, 1, 2))
sketch18.addConstraint(Sketcher.Constraint("Tangent", 1, 1, 2, 1))
sketch18.addConstraint(Sketcher.Constraint("Coincident", 2, 2, 3, 1))
sketch18.addConstraint(Sketcher.Constraint("Coincident", 3, 2, 0, 1))
sketch18.addConstraint(Sketcher.Constraint("Tangent", 4, 2, 5, 2))
sketch18.addConstraint(Sketcher.Constraint("Tangent", 5, 1, 6, 1))
sketch18.addConstraint(Sketcher.Constraint("Coincident", 6, 2, 7, 1))
sketch18.addConstraint(Sketcher.Constraint("Coincident", 7, 2, 4, 1))
sketch18.addConstraint(Sketcher.Constraint("Vertical", 0))
sketch18.addConstraint(Sketcher.Constraint("Vertical", 2))
sketch18.addConstraint(Sketcher.Constraint("Horizontal", 3))
sketch18.addConstraint(Sketcher.Constraint("Vertical", 4))
sketch18.addConstraint(Sketcher.Constraint("Vertical", 6))
sketch18.addConstraint(Sketcher.Constraint("Horizontal", 7))
sketch18.addConstraint(Sketcher.Constraint("Equal", 1, 5))
sketch18.addConstraint(Sketcher.Constraint("Symmetric", 1, 3, 5, 3, -2))
sketch18.addConstraint(Sketcher.Constraint("Horizontal", 3, 2, 6, 2))
sketch18.addConstraint(Sketcher.Constraint("Radius", 1, 2.17))
sketch18.addConstraint(Sketcher.Constraint("DistanceY", 0, 1, 0, 2, 2.33))
sketch18.addConstraint(Sketcher.Constraint("DistanceX", 1, 3, 5, 3, 9.5))
sketch18.addConstraint(Sketcher.Constraint("DistanceY", 1, 3, -1, 1, 8.45))
sketch18.setExpression("Constraints[17]", "Params.sketch18_radius")
sketch18.setExpression("Constraints[18]", "Params.sketch18_height")
pocket12 = doc.addObject("PartDesign::Pocket", "Pocket011")
body3.addObject(pocket12)
pocket12.Profile = sketch18
pocket12.setExpression("Length", "Params.pocket12_length")
pocket12.Reversed = True

sketch19 = doc.addObject("Sketcher::SketchObject", "Sketch018")
body3.addObject(sketch19)
sketch19.AttachmentSupport = (doc.getObject("XY_Plane002"), [""])
sketch19.MapMode = "FlatFace"
sketch19.AttachmentOffset = App.Placement(App.Vector(0, 0, 78), App.Rotation())
add_polygon(sketch19, [(-7.9, -14.6), (-7.9, -21.5), (-6.1, -21.5), (-6.1, -14.6)])
add_polygon(sketch19, [(6.1, -14.6), (6.1, -21.5), (7.9, -21.5), (7.9, -14.6)])
sketch19.addConstraint(Sketcher.Constraint("Vertical", 0))
sketch19.addConstraint(Sketcher.Constraint("Horizontal", 1))
sketch19.addConstraint(Sketcher.Constraint("Vertical", 2))
sketch19.addConstraint(Sketcher.Constraint("Horizontal", 3))
sketch19.addConstraint(Sketcher.Constraint("Vertical", 4))
sketch19.addConstraint(Sketcher.Constraint("Horizontal", 5))
sketch19.addConstraint(Sketcher.Constraint("Vertical", 6))
sketch19.addConstraint(Sketcher.Constraint("Horizontal", 7))
sketch19.addConstraint(Sketcher.Constraint("Symmetric", 1, 2, 4, 2, -2))
sketch19.addConstraint(Sketcher.Constraint("Symmetric", 3, 2, 6, 2, -2))
sketch19.addConstraint(Sketcher.Constraint("DistanceX", 0, 2, 4, 2, 14.0))
sketch19.addConstraint(Sketcher.Constraint("DistanceX", 1, 1, 1, 2, 1.84))
sketch19.addConstraint(Sketcher.Constraint("DistanceY", 0, 2, 0, 1, 6.88))
sketch19.addConstraint(Sketcher.Constraint("DistanceY", 0, 2, -1, 1, 21.5))
sketch19.setExpression("Constraints[19]", "Params.sketch19_width")
sketch19.setExpression("Constraints[20]", "Params.sketch19_height")
pad7 = doc.addObject("PartDesign::Pad", "Pad006")
body3.addObject(pad7)
pad7.Profile = sketch19
pad7.setExpression("Length", "Params.pad7_length")
pad7.Reversed = True

doc.recompute()
